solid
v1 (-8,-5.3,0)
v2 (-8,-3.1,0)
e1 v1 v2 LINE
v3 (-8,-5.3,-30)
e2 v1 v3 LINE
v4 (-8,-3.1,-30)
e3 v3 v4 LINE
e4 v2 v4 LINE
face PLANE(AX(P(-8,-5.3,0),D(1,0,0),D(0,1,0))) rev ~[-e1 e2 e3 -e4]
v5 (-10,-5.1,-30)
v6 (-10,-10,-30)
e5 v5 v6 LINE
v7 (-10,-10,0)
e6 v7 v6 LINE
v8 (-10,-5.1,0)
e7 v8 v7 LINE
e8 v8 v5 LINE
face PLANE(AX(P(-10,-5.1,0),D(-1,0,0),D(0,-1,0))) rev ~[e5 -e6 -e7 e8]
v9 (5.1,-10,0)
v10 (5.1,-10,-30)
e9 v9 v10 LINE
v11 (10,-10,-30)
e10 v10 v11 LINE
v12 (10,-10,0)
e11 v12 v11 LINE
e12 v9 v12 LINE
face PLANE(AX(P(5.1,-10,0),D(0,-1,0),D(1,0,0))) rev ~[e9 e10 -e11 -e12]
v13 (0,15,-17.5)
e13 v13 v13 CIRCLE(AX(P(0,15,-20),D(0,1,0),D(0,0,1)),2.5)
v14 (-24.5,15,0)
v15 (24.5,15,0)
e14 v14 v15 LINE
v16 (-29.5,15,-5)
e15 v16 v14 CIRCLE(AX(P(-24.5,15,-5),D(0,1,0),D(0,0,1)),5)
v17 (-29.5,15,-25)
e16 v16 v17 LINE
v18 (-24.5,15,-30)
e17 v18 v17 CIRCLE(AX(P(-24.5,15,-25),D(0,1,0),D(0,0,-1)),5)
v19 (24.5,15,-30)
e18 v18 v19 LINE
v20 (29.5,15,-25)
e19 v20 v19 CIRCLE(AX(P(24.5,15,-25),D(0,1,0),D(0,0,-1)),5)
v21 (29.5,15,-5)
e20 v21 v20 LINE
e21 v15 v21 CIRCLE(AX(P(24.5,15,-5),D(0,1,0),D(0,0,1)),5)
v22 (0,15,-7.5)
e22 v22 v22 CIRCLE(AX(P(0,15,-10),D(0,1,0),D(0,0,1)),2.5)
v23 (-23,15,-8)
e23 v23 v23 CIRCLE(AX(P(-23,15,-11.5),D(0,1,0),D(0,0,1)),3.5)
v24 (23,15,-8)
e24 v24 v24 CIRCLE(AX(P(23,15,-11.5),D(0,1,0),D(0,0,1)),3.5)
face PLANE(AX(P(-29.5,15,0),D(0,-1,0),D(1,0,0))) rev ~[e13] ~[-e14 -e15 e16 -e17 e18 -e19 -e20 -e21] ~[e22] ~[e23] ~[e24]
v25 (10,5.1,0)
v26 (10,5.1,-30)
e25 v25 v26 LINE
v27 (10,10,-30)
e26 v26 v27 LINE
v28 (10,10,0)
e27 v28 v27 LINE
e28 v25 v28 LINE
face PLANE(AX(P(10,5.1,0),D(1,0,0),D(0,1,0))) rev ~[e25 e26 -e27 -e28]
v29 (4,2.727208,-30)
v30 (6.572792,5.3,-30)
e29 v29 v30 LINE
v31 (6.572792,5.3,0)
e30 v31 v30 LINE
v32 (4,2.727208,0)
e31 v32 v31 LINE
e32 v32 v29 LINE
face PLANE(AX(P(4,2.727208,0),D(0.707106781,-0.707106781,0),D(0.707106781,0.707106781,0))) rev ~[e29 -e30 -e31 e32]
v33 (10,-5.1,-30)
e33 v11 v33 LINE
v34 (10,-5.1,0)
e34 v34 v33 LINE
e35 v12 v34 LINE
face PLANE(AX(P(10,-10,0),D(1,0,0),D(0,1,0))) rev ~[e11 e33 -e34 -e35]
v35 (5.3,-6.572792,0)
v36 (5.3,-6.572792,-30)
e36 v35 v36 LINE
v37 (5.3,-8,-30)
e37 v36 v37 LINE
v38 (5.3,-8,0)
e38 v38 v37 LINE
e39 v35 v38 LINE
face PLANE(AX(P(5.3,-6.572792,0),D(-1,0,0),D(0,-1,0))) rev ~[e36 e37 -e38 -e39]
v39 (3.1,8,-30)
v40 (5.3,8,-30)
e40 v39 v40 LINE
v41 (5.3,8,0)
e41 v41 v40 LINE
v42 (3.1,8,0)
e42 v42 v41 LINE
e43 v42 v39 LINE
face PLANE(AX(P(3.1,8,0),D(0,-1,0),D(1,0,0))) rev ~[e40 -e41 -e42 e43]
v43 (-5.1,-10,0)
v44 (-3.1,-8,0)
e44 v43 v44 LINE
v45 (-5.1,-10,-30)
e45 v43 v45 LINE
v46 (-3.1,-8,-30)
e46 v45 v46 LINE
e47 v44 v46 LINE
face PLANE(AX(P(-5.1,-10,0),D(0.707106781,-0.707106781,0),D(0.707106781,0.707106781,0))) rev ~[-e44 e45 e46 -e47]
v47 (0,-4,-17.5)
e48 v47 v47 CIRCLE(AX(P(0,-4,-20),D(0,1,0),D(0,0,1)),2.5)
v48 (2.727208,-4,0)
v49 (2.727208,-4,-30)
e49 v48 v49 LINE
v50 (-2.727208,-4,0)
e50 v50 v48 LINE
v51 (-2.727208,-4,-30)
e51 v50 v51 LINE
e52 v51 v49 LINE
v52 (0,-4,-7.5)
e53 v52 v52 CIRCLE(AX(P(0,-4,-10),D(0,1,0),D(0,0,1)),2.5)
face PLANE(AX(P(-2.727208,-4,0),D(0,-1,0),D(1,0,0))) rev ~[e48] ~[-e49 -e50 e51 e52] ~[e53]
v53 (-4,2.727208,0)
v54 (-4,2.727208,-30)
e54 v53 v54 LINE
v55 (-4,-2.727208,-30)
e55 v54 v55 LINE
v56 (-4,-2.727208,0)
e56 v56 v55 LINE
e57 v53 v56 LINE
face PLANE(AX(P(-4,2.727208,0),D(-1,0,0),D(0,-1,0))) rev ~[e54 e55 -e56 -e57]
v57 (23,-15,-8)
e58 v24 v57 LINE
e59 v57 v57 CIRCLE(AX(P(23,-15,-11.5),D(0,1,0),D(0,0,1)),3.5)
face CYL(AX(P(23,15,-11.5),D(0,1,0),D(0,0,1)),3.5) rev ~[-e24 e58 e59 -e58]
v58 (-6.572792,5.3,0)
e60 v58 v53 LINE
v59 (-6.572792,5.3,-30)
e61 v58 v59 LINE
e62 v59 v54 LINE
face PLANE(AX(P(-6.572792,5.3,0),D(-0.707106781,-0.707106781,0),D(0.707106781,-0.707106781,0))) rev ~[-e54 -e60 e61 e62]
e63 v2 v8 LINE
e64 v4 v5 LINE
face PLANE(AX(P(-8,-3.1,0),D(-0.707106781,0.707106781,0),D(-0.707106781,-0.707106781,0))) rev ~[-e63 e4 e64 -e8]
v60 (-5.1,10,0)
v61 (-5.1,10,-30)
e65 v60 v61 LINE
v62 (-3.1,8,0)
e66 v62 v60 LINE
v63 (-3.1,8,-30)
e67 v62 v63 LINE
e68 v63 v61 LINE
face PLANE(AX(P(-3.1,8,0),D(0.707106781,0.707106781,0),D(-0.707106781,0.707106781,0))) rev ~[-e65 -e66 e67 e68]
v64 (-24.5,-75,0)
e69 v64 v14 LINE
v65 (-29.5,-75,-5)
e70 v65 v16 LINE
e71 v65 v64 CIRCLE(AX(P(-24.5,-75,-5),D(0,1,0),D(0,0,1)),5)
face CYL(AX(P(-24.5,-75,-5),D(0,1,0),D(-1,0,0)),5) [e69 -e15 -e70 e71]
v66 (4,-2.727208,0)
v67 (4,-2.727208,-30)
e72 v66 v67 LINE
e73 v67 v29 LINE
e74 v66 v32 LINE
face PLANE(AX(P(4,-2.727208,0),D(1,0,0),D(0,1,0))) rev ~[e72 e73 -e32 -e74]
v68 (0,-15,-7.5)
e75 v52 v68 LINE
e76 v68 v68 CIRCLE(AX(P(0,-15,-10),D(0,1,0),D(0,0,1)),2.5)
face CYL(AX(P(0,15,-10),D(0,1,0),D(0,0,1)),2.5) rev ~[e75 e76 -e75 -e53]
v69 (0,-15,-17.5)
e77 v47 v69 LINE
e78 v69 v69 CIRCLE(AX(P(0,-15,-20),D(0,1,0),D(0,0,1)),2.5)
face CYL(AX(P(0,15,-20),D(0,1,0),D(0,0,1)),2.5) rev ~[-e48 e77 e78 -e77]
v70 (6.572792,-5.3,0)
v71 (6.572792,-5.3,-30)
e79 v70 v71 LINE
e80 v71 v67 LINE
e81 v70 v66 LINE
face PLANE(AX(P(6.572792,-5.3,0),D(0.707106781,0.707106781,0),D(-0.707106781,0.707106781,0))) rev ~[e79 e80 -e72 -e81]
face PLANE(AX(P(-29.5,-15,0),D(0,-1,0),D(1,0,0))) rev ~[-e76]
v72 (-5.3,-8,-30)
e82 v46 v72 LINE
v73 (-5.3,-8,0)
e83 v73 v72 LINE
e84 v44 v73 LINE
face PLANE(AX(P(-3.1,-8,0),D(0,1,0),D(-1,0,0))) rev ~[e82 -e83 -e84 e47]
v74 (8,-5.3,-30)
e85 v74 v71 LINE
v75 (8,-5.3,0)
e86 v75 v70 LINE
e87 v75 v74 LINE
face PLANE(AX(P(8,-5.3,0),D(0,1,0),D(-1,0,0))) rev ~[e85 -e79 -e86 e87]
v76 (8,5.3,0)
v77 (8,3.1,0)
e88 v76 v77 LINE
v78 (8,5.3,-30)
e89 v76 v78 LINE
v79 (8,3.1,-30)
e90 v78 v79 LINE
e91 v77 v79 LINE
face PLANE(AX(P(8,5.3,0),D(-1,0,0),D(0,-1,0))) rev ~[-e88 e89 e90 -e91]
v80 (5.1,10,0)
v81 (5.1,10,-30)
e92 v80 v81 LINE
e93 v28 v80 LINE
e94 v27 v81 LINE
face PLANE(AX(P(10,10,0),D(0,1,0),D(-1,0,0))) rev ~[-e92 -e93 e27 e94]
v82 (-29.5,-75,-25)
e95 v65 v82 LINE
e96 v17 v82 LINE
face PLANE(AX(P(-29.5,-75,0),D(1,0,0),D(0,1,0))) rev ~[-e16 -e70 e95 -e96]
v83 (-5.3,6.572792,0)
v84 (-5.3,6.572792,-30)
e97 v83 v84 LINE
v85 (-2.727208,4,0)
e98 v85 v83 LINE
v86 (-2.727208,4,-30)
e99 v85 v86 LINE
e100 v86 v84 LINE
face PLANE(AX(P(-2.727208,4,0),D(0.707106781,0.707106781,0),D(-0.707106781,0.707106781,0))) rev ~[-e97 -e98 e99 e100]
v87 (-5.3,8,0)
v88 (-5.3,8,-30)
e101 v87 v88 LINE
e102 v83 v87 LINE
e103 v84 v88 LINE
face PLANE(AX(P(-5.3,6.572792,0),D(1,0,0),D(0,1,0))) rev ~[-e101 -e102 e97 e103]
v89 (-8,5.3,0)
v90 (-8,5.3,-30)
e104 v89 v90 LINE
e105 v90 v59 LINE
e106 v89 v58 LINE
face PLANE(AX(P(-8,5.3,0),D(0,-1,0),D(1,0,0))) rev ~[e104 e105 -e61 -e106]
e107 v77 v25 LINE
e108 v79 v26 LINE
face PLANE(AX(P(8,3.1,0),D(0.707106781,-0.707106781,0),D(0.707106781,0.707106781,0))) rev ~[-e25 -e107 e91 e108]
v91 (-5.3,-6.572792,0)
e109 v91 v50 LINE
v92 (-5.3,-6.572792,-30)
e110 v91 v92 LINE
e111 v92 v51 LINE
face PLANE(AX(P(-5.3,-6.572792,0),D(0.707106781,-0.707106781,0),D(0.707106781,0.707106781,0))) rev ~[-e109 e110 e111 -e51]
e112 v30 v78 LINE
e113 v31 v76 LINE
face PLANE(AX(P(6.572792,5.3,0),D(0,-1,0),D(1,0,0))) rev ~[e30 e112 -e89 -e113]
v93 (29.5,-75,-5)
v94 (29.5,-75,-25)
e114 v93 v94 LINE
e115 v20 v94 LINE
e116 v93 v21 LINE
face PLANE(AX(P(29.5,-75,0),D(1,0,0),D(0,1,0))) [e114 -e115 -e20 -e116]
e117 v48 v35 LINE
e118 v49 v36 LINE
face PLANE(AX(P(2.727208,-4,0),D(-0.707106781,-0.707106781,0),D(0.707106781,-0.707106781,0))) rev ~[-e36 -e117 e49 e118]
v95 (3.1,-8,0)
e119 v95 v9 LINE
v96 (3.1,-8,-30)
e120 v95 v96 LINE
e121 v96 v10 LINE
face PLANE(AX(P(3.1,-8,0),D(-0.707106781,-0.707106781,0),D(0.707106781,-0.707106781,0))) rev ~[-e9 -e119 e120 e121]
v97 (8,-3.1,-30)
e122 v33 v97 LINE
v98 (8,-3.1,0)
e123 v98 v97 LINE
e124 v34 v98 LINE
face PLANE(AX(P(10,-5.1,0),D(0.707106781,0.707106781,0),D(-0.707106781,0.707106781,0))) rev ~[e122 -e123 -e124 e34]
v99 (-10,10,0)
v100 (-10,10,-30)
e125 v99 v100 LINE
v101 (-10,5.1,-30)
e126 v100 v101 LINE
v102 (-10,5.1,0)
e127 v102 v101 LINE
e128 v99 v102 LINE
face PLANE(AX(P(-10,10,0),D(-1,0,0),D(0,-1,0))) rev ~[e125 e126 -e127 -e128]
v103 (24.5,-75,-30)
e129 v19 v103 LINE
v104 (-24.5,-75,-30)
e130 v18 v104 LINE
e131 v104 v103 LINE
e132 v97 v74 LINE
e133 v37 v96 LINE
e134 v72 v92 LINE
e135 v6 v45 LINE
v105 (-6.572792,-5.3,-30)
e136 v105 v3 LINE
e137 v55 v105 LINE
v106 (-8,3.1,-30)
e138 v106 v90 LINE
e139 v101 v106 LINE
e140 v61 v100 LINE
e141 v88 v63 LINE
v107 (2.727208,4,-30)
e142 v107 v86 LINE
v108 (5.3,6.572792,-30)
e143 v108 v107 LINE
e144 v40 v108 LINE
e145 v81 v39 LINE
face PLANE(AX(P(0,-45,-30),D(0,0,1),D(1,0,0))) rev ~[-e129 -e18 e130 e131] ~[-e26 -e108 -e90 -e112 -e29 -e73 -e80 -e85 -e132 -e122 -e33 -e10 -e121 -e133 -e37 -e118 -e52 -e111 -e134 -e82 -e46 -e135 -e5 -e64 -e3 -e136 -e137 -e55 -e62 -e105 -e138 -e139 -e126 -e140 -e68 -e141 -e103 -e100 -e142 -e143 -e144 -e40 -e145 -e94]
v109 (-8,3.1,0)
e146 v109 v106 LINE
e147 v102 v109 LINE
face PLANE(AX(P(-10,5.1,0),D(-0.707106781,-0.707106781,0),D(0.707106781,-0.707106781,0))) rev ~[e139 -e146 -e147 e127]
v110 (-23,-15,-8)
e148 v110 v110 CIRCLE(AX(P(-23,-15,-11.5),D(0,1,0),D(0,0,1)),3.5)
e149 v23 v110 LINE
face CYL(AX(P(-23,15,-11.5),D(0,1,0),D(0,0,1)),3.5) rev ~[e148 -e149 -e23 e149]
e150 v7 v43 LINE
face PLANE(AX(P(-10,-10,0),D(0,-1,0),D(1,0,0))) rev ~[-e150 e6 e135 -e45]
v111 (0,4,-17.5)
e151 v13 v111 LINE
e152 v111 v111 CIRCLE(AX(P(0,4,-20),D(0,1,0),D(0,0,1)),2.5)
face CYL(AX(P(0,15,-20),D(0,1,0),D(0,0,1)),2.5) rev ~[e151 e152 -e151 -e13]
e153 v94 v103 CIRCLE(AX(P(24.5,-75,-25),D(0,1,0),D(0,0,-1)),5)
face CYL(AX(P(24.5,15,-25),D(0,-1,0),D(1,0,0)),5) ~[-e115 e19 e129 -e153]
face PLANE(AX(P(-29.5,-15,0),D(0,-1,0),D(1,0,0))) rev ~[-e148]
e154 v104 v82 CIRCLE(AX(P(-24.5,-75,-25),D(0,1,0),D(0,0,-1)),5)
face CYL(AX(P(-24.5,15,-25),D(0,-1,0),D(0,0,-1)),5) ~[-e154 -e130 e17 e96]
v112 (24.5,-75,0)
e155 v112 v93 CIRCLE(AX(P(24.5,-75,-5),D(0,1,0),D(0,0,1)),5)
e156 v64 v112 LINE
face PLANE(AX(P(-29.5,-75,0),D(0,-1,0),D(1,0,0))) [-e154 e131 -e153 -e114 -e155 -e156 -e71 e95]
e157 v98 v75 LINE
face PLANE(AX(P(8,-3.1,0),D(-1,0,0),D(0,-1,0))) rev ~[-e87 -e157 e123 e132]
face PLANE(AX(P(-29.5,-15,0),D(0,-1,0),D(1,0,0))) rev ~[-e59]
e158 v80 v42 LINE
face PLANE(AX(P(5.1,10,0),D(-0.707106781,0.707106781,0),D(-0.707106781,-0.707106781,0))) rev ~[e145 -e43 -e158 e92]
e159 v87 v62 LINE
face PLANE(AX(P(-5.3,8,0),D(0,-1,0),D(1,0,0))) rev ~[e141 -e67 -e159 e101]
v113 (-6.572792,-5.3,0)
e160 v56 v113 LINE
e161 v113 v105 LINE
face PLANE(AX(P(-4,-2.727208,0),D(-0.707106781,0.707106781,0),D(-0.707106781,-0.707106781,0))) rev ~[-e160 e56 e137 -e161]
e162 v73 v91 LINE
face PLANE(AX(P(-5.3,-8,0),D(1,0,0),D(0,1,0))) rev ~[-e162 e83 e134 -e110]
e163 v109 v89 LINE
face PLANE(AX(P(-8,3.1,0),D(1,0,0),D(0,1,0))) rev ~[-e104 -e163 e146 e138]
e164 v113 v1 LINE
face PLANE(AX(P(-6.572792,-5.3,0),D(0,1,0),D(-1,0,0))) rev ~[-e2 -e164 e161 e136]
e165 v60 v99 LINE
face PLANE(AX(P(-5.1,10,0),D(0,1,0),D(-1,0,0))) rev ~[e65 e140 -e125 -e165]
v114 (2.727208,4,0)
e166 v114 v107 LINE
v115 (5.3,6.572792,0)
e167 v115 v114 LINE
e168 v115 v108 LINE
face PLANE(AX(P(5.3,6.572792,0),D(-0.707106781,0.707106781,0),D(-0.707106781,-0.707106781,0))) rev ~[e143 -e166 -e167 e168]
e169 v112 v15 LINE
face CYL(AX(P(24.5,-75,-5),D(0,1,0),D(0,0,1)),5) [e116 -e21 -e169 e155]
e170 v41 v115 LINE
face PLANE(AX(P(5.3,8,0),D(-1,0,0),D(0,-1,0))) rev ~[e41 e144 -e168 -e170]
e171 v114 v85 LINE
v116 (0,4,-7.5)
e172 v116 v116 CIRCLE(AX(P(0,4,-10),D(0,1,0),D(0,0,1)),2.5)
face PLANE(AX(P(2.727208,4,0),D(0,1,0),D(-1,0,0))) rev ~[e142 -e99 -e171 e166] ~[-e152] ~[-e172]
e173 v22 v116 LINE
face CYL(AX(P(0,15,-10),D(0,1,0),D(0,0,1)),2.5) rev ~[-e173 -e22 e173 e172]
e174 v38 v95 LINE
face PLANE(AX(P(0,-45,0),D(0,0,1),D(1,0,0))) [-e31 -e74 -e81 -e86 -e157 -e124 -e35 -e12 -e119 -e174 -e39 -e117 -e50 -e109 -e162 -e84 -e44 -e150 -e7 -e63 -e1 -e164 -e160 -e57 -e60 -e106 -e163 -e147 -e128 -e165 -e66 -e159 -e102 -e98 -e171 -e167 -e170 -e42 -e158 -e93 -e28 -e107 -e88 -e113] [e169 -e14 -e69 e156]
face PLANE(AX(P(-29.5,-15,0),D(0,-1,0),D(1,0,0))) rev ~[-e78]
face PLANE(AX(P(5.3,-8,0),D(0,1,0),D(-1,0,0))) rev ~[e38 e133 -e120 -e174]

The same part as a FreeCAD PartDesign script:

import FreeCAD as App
import Part
import Sketcher
Q = App.Units.Quantity


def edges_at(feature, points):
    """Names of the edges that pass closest to the given points."""
    edges = feature.Shape.Edges
    near = lambda p: min(range(len(edges)), key=lambda i: edges[i].distToShape(Part.Vertex(*p))[0])
    return sorted({f"Edge{near(p) + 1}" for p in points})


def add_polygon(sketch, points):
    """Adds a closed chain of lines whose ends are joined by coincident constraints."""
    first, n = sketch.GeometryCount, len(points)
    for a, b in zip(points, points[1:] + points[:1]):
        sketch.addGeometry(Part.LineSegment(App.Vector(*a, 0), App.Vector(*b, 0)), False)
    for i in range(n):
        sketch.addConstraint(Sketcher.Constraint("Coincident", first + i, 2, first + (i + 1) % n, 1))

doc = App.newDocument("Part")
body = doc.addObject("PartDesign::Body", "Body")

sketch1 = body.newObject("Sketcher::SketchObject", "Sketch")
sketch1.AttachmentSupport = (doc.getObject("XY_Plane"), [""])
sketch1.MapMode = "FlatFace"
add_polygon(sketch1, [(-29.5, 15), (-29.5, -15), (29.5, -15), (29.5, 15)])
add_polygon(sketch1, [(6.6, 5.3), (4, 2.7), (4, -2.7), (6.6, -5.3), (8, -5.3), (8, -3.1), (10, -5.1), (10, -10), (5.1, -10), (3.1, -8), (5.3, -8), (5.3, -6.6), (2.7, -4), (-2.7, -4), (-5.3, -6.6), (-5.3, -8), (-3.1, -8), (-5.1, -10), (-10, -10), (-10, -5.1), (-8, -3.1), (-8, -5.3), (-6.6, -5.3), (-4, -2.7), (-4, 2.7), (-6.6, 5.3), (-8, 5.3), (-8, 3.1), (-10, 5.1), (-10, 10), (-5.1, 10), (-3.1, 8), (-5.3, 8), (-5.3, 6.6), (-2.7, 4), (2.7, 4), (5.3, 6.6), (5.3, 8), (3.1, 8), (5.1, 10), (10, 10), (10, 5.1), (8, 3.1), (8, 5.3)])
sketch1.addConstraint([
    Sketcher.Constraint("Vertical", 0),
    Sketcher.Constraint("Horizontal", 1),
    Sketcher.Constraint("Vertical", 2),
    Sketcher.Constraint("Horizontal", 3),
    Sketcher.Constraint("Vertical", 5),
    Sketcher.Constraint("Horizontal", 7),
    Sketcher.Constraint("Vertical", 8),
    Sketcher.Constraint("Vertical", 10),
    Sketcher.Constraint("Horizontal", 11),
    Sketcher.Constraint("Horizontal", 13),
    Sketcher.Constraint("Vertical", 14),
    Sketcher.Constraint("Horizontal", 16),
    Sketcher.Constraint("Vertical", 18),
    Sketcher.Constraint("Horizontal", 19),
    Sketcher.Constraint("Horizontal", 21),
    Sketcher.Constraint("Vertical", 22),
    Sketcher.Constraint("Vertical", 24),
    Sketcher.Constraint("Horizontal", 25),
    Sketcher.Constraint("Vertical", 27),
    Sketcher.Constraint("Horizontal", 29),
    Sketcher.Constraint("Vertical", 30),
    Sketcher.Constraint("Vertical", 32),
    Sketcher.Constraint("Horizontal", 33),
    Sketcher.Constraint("Horizontal", 35),
    Sketcher.Constraint("Vertical", 36),
    Sketcher.Constraint("Horizontal", 38),
    Sketcher.Constraint("Vertical", 40),
    Sketcher.Constraint("Horizontal", 41),
    Sketcher.Constraint("Horizontal", 43),
    Sketcher.Constraint("Vertical", 44),
    Sketcher.Constraint("Vertical", 46),
    Sketcher.Constraint("Horizontal", 47),
    Sketcher.Constraint("Symmetric", 0, 2, 2, 2, -1, 1),
    Sketcher.Constraint("Symmetric", 4, 2, 26, 2, -1, 1),
    Sketcher.Constraint("Symmetric", 6, 2, 28, 2, -1, 1),
    Sketcher.Constraint("Symmetric", 8, 2, 30, 2, -1, 1),
    Sketcher.Constraint("Symmetric", 9, 2, 31, 2, -1, 1),
    Sketcher.Constraint("Symmetric", 11, 2, 33, 2, -1, 1),
    Sketcher.Constraint("Symmetric", 12, 2, 34, 2, -1, 1),
    Sketcher.Constraint("Symmetric", 14, 2, 36, 2, -1, 1),
    Sketcher.Constraint("Symmetric", 15, 2, 37, 2, -1, 1),
    Sketcher.Constraint("Symmetric", 17, 2, 39, 2, -1, 1),
    Sketcher.Constraint("Symmetric", 19, 2, 41, 2, -1, 1),
    Sketcher.Constraint("Symmetric", 20, 2, 42, 2, -1, 1),
    Sketcher.Constraint("Symmetric", 22, 2, 44, 2, -1, 1),
    Sketcher.Constraint("Symmetric", 23, 2, 45, 2, -1, 1),
    Sketcher.Constraint("Symmetric", 25, 2, 47, 2, -1, 1),
    Sketcher.Constraint("Symmetric", 14, 2, 17, 2, -2),
    Sketcher.Constraint("Symmetric", 12, 2, 19, 2, -2),
    Sketcher.Constraint("Symmetric", 11, 2, 20, 2, -2),
    Sketcher.Constraint("Symmetric", 9, 2, 22, 2, -2),
    Sketcher.Constraint("Symmetric", 8, 2, 23, 2, -2),
    Sketcher.Constraint("Symmetric", 6, 2, 25, 2, -2),
    Sketcher.Constraint("Perpendicular", 4, 6),
    Sketcher.Constraint("Parallel", 6, 9),
    Sketcher.Constraint("Parallel", 9, 12),
    Sketcher.Constraint("Parallel", 12, 15),
    Sketcher.Constraint("Perpendicular", 15, 17),
    Sketcher.Constraint("Parallel", 17, 20),
    Sketcher.Constraint("Perpendicular", 26, 28),
    Sketcher.Constraint("Perpendicular", 37, 39),
    Sketcher.Constraint("Equal", 38, 5),
    Sketcher.Constraint("Equal", 41, 8),
    Sketcher.Constraint("Equal", 43, 10),
    Sketcher.Constraint("Equal", 47, 14),
    Sketcher.Constraint("Equal", 9, 12),
    Sketcher.Constraint("Equal", 6, 15),
    Sketcher.Constraint("DistanceX", 1, 1, 1, 2, Q("59 mm")),
    Sketcher.Constraint("DistanceY", 0, 2, 0, 1, Q("30 mm")),
    Sketcher.Constraint("DistanceX", 11, 2, 11, 1, Q("4.9 mm")),
    Sketcher.Constraint("DistanceX", 13, 1, 13, 2, Q("2.2 mm")),
    Sketcher.Constraint("DistanceX", -1, 1, 4, 2, Q("4 mm")),
    Sketcher.Constraint("DistanceX", -1, 1, 7, 2, Q("8 mm")),
    Sketcher.Constraint("DistanceX", -1, 1, 9, 2, Q("10 mm")),
    Sketcher.Constraint("DistanceX", 7, 1, 7, 2, Q("1.427208 mm")),
])
pad1 = body.newObject("PartDesign::Pad", "Pad")
pad1.Profile = sketch1
pad1.Length = 30
pad1.Reversed = True

sketch2 = body.newObject("Sketcher::SketchObject", "Sketch001")
sketch2.AttachmentSupport = (doc.getObject("XZ_Plane"), [""])
sketch2.MapMode = "FlatFace"
sketch2.AttachmentOffset = App.Placement(App.Vector(0, 0, -15), App.Rotation())
sketch2.addGeometry([
    Part.Circle(App.Vector(0, -10, 0), App.Vector(0, 0, 1), 2.5),
    Part.Circle(App.Vector(0, -20, 0), App.Vector(0, 0, 1), 2.5),
    Part.Circle(App.Vector(23, -11.5, 0), App.Vector(0, 0, 1), 3.5),
    Part.Circle(App.Vector(-23, -11.5, 0), App.Vector(0, 0, 1), 3.5),
], False)
sketch2.addConstraint([
    Sketcher.Constraint("Equal", 0, 1),
    Sketcher.Constraint("Equal", 2, 3),
    Sketcher.Constraint("Symmetric", 2, 3, 3, 3, -2),
    Sketcher.Constraint("PointOnObject", 0, 3, -2),
    Sketcher.Constraint("PointOnObject", 1, 3, -2),
    Sketcher.Constraint("Diameter", 0, Q("5 mm")),
    Sketcher.Constraint("Diameter", 2, Q("7 mm")),
    Sketcher.Constraint("DistanceY", 0, 3, -1, 1, Q("10 mm")),
    Sketcher.Constraint("DistanceY", 1, 3, -1, 1, Q("20 mm")),
    Sketcher.Constraint("DistanceX", -1, 1, 2, 3, Q("23 mm")),
    Sketcher.Constraint("DistanceY", 2, 3, -1, 1, Q("11.5 mm")),
])
pocket1 = body.newObject("PartDesign::Pocket", "Pocket")
pocket1.Profile = sketch2
pocket1.Type = "ThroughAll"
pocket1.Reversed = True

sketch3 = body.newObject("Sketcher::SketchObject", "Sketch002")
sketch3.AttachmentSupport = (doc.getObject("XY_Plane"), [""])
sketch3.MapMode = "FlatFace"
add_polygon(sketch3, [(-30, -15), (-30, -75), (30, -75), (30, -15)])
sketch3.addConstraint([
    Sketcher.Constraint("Vertical", 0),
    Sketcher.Constraint("Horizontal", 1),
    Sketcher.Constraint("Vertical", 2),
    Sketcher.Constraint("Horizontal", 3),
    Sketcher.Constraint("DistanceX", 1, 1, 1, 2, Q("59 mm")),
    Sketcher.Constraint("DistanceY", 0, 2, 0, 1, Q("60 mm")),
    Sketcher.Constraint("DistanceY", 0, 2, -1, 1, Q("75 mm")),
    Sketcher.Constraint("DistanceX", 0, 2, -1, 1, Q("29.5 mm")),
])
pad2 = body.newObject("PartDesign::Pad", "Pad001")
pad2.Profile = sketch3
pad2.Length = 30
pad2.Reversed = True
doc.recompute()

fillet = body.newObject("PartDesign::Fillet", "Fillet")
fillet.Base = (pad2, edges_at(pad2, [(29.5, -30, 0)]))
fillet.Radius = 5
doc.recompute()

fillet2 = body.newObject("PartDesign::Fillet", "Fillet001")
fillet2.Base = (fillet, edges_at(fillet, [(29.5, -30, -30)]))
fillet2.Radius = 5
doc.recompute()

fillet3 = body.newObject("PartDesign::Fillet", "Fillet002")
fillet3.Base = (fillet2, edges_at(fillet2, [(-29.5, -30, -30)]))
fillet3.Radius = 5
doc.recompute()

fillet4 = body.newObject("PartDesign::Fillet", "Fillet003")
fillet4.Base = (fillet3, edges_at(fillet3, [(-29.5, -30, 0)]))
fillet4.Radius = 5

doc.recompute()
